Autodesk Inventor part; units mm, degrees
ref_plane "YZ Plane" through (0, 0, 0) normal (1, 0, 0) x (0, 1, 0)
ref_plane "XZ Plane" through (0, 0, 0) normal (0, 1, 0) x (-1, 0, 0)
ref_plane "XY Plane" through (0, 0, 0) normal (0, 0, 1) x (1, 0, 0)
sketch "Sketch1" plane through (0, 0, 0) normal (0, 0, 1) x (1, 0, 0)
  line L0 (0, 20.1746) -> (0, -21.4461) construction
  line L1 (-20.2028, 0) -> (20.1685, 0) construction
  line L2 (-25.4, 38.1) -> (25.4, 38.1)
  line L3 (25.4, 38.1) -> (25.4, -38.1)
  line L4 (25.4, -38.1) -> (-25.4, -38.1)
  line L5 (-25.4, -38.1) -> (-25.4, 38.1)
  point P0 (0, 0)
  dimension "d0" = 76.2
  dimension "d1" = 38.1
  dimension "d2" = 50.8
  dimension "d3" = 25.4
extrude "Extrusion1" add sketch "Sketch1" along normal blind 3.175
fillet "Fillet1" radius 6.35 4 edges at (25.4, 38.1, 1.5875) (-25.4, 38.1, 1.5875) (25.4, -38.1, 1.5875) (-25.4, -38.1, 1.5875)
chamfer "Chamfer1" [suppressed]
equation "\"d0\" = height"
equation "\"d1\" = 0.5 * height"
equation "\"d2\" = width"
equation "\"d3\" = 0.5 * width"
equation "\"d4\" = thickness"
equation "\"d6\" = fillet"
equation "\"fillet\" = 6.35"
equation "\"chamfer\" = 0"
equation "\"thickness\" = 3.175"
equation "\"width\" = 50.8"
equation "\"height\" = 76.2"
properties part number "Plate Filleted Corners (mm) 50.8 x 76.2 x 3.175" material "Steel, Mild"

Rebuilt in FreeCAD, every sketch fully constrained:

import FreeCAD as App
import Part
import Sketcher

V = App.Vector
Q = App.Units.Quantity


def edges_at(feature, points):
    """Names of the edges that pass closest to the given points."""
    edges = feature.Shape.Edges
    near = lambda p: min(range(len(edges)), key=lambda i: edges[i].distToShape(Part.Vertex(*p))[0])
    return sorted({f"Edge{near(p) + 1}" for p in points})


def add_polygon(sketch, points):
    """Adds a closed chain of lines whose ends are joined by coincident constraints."""
    first, n = sketch.GeometryCount, len(points)
    for a, b in zip(points, points[1:] + points[:1]):
        sketch.addGeometry(Part.LineSegment(App.Vector(*a, 0), App.Vector(*b, 0)), False)
    for i in range(n):
        sketch.addConstraint(Sketcher.Constraint("Coincident", first + i, 2, first + (i + 1) % n, 1))

doc = App.newDocument("Part")
body = doc.addObject("PartDesign::Body", "Body")

# Sketch on XY plane
sketch1 = body.newObject("Sketcher::SketchObject", "Sketch")
sketch1.AttachmentSupport = (doc.getObject("XY_Plane"), [""])
sketch1.MapMode = "FlatFace"
add_polygon(sketch1, [(25.4, 38.1), (-25.4, 38.1), (-25.4, -38.1), (25.4, -38.1)])  # lines 0-3
sketch1.addConstraint(Sketcher.Constraint("Horizontal", 0))
sketch1.addConstraint(Sketcher.Constraint("Vertical", 1))
sketch1.addConstraint(Sketcher.Constraint("Horizontal", 2))
sketch1.addConstraint(Sketcher.Constraint("Vertical", 3))
sketch1.addConstraint(Sketcher.Constraint("Symmetric", 0, 2, 2, 2, -1, 1))
sketch1.addConstraint(Sketcher.Constraint("DistanceX", 0, 2, 0, 1, Q("2 in")))
sketch1.addConstraint(Sketcher.Constraint("DistanceY", 1, 2, 1, 1, Q("3 in")))
pad1 = body.newObject("PartDesign::Pad", "Pad")
pad1.Profile = sketch1
pad1.Length = Q("0.125 in")
doc.recompute()

fillet = body.newObject("PartDesign::Fillet", "Fillet")
fillet.Base = (pad1, edges_at(pad1, [
    (25.4, 38.1, 1.587),
    (-25.4, 38.1, 1.587),
    (25.4, -38.1, 1.587),
    (-25.4, -38.1, 1.587),
]))
fillet.Radius = Q("0.25 in")

doc.recompute()
